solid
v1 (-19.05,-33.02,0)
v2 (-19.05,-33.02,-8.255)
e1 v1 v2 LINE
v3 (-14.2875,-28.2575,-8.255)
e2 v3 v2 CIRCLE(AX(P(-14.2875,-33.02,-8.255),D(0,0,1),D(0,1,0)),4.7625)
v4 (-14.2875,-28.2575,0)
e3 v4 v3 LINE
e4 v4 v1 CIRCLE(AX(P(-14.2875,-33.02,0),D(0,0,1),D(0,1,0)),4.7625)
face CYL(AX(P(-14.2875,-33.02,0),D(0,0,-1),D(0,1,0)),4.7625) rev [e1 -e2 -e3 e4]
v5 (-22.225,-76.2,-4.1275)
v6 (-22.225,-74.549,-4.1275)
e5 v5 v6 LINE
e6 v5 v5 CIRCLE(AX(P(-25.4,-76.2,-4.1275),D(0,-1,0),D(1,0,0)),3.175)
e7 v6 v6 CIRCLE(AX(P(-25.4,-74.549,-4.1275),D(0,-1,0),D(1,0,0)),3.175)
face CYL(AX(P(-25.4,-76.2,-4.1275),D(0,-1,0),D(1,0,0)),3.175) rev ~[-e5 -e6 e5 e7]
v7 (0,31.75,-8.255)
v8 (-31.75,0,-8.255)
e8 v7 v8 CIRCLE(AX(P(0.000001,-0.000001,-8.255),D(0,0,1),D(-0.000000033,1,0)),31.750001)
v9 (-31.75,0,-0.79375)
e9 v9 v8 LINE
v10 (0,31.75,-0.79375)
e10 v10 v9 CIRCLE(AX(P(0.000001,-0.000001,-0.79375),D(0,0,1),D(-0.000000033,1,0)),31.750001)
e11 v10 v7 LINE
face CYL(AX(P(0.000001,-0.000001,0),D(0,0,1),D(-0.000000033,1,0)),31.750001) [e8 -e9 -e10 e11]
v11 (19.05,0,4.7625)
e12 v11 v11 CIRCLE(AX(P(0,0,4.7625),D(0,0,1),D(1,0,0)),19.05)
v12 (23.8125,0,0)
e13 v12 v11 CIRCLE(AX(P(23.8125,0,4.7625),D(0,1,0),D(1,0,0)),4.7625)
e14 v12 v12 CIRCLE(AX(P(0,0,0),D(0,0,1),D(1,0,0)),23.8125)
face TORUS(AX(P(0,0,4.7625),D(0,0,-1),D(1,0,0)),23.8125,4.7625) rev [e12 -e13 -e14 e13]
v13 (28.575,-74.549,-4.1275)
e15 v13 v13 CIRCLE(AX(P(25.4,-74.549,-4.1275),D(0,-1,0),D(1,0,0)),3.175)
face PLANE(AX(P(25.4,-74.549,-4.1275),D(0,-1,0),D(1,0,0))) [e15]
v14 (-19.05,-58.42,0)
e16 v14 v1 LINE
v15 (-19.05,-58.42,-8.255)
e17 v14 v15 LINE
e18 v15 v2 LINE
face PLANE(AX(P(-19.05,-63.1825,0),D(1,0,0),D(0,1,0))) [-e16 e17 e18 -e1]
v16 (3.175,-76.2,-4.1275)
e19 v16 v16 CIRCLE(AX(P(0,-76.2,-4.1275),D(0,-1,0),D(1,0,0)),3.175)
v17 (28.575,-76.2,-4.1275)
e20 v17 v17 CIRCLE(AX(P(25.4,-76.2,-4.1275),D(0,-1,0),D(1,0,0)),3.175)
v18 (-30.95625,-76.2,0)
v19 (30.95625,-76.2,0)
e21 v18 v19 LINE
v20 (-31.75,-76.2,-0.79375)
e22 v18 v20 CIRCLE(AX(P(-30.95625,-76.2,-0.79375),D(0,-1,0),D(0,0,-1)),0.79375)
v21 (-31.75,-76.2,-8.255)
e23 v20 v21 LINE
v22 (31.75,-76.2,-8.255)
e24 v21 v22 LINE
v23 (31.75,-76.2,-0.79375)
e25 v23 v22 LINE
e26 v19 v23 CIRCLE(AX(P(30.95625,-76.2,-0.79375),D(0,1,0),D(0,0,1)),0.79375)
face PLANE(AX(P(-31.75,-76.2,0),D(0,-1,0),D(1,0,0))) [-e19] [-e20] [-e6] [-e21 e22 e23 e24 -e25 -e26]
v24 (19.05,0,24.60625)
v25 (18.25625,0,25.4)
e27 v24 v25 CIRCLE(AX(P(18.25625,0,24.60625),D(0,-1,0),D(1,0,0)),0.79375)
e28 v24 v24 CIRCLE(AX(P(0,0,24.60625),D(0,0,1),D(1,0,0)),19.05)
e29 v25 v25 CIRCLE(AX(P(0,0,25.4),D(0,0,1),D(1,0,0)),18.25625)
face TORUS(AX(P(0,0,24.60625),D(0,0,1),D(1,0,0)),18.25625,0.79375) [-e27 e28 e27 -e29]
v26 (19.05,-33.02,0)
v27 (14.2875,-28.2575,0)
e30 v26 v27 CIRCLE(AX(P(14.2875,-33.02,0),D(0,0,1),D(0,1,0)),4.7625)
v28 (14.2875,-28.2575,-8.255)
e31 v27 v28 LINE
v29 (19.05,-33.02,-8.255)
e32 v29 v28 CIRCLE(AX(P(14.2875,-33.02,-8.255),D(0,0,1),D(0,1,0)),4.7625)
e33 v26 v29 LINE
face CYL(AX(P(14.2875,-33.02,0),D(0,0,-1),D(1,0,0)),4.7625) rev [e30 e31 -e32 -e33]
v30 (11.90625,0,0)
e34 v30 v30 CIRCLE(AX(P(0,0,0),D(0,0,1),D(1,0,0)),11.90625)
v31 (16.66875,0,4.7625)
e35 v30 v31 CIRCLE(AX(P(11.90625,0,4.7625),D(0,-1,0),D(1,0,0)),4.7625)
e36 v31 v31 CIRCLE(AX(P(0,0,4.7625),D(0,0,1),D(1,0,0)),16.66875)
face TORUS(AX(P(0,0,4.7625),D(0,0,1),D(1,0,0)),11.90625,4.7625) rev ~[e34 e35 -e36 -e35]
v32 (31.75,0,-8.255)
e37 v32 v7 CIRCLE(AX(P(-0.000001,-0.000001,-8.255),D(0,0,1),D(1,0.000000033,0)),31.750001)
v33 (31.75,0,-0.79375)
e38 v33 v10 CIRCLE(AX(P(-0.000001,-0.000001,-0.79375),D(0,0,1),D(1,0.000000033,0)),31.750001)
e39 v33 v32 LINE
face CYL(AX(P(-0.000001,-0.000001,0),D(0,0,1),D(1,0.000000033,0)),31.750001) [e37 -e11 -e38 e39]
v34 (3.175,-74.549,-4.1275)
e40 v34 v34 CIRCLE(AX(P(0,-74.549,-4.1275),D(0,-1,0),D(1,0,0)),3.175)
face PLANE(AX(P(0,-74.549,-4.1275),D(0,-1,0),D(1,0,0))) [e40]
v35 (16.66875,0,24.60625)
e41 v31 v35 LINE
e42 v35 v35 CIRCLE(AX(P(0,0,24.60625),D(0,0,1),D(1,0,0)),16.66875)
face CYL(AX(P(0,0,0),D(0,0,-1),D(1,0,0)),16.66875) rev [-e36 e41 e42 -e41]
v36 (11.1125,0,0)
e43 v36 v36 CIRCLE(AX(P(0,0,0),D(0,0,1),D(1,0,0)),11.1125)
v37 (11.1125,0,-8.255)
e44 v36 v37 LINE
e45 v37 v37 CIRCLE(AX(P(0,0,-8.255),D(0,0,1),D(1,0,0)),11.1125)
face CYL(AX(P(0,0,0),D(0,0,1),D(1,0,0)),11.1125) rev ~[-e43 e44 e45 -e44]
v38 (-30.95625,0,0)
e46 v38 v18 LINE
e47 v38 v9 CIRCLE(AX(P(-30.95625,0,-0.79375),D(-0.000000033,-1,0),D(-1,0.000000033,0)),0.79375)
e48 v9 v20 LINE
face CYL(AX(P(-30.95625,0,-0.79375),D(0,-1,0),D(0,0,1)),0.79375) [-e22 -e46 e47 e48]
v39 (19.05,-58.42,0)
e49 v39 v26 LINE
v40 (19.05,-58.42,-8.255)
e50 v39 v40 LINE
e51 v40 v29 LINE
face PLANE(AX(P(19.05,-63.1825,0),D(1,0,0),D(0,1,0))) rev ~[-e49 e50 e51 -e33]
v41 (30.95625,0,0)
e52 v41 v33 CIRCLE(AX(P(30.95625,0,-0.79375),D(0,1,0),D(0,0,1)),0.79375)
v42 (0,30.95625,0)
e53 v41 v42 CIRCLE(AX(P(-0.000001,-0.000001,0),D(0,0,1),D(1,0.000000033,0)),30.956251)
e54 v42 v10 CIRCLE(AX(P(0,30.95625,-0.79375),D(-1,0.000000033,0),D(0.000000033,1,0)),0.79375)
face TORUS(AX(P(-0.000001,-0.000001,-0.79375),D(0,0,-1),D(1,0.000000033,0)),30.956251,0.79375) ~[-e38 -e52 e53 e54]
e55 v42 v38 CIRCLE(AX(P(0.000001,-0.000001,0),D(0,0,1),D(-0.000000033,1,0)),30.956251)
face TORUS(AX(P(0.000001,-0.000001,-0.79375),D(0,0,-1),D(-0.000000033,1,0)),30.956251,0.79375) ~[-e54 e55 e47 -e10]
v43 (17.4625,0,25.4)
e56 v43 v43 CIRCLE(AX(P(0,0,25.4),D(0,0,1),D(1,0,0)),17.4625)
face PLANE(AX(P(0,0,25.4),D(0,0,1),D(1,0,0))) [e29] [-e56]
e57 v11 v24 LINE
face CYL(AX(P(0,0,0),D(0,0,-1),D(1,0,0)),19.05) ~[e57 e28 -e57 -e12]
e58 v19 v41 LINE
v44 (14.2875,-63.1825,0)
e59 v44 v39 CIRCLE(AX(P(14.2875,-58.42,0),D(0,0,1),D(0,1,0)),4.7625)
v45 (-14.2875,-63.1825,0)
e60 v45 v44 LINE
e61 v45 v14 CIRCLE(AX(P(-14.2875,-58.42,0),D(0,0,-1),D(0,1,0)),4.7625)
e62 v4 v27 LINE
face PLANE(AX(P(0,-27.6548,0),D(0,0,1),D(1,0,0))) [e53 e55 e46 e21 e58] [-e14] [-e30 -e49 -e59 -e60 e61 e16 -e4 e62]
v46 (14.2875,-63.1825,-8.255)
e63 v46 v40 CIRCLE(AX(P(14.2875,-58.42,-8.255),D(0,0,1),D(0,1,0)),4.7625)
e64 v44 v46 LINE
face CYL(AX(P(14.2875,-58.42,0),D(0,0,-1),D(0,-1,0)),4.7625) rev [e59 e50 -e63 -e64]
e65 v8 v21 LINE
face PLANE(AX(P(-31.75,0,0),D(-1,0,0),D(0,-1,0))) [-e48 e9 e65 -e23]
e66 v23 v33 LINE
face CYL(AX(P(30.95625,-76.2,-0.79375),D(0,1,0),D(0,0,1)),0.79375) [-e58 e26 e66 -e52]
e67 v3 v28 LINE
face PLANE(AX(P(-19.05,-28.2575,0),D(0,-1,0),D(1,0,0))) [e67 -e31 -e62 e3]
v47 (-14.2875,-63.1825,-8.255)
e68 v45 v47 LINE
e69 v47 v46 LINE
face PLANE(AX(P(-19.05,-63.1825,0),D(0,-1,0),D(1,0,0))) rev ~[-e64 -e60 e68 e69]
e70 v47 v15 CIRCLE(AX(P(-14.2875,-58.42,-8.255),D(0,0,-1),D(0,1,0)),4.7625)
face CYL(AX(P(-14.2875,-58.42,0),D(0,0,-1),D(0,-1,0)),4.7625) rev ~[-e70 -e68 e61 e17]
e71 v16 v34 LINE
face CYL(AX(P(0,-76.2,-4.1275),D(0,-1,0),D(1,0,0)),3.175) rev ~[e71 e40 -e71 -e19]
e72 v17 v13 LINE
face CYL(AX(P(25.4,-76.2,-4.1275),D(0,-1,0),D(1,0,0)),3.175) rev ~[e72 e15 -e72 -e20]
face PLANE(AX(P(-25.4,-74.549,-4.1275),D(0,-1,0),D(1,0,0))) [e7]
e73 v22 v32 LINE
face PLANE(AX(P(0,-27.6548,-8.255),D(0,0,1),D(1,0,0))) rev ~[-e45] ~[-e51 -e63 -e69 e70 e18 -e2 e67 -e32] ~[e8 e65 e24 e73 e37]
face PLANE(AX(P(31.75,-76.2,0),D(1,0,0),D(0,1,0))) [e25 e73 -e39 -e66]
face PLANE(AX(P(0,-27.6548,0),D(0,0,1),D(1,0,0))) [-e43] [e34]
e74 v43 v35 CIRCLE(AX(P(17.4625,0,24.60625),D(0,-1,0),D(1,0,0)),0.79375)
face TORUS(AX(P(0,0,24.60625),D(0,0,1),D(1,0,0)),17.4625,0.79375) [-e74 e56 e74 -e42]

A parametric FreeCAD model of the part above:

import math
import FreeCAD as App
import Part
import Sketcher
Q = App.Units.Quantity


def edges_at(feature, points):
    """Names of the edges that pass closest to the given points."""
    edges = feature.Shape.Edges
    near = lambda p: min(range(len(edges)), key=lambda i: edges[i].distToShape(Part.Vertex(*p))[0])
    return sorted({f"Edge{near(p) + 1}" for p in points})


def add_polygon(sketch, points):
    """Adds a closed chain of lines whose ends are joined by coincident constraints."""
    first, n = sketch.GeometryCount, len(points)
    for a, b in zip(points, points[1:] + points[:1]):
        sketch.addGeometry(Part.LineSegment(App.Vector(*a, 0), App.Vector(*b, 0)), False)
    for i in range(n):
        sketch.addConstraint(Sketcher.Constraint("Coincident", first + i, 2, first + (i + 1) % n, 1))

doc = App.newDocument("Part")
params = doc.addObject("Spreadsheet::Sheet", "Params")
for row, (alias, value) in enumerate([
    ("sketch1_height", "3 in"),
    ("sketch1_radius", "1.25 in"),
    ("pad1_length", "0.325 in"),
    ("sketch2_diameter", "1.5 in"),
    ("sketch2_diameter2", "1.3125 in"),
    ("pad2_length", "1 in"),
    ("sketch3_diameter", "0.25 in"),
    ("pocket1_length", "0.065 in"),
    ("sketch4_diameter", "0.875 in"),
    ("sketch4_width", "1.5 in"),
    ("sketch4_height", "1.375 in"),
    ("fillet_radius", "0.1875 in"),
    ("fillet2_radius", "0.03125 in"),
], start=1):
    params.set(f"A{row}", alias)
    params.set(f"B{row}", "=" + value)
    params.setAlias(f"B{row}", alias)

body = doc.addObject("PartDesign::Body", "Body")

# Sketch on XY plane
sketch1 = body.newObject("Sketcher::SketchObject", "Sketch")
sketch1.AttachmentSupport = (doc.getObject("XY_Plane"), [""])
sketch1.MapMode = "FlatFace"
sketch1.addGeometry([
    Part.ArcOfCircle(Part.Circle(App.Vector(0, 0, 0), App.Vector(0, 0, 1), 32), math.radians(0), math.radians(90)),  # 0
    Part.ArcOfCircle(Part.Circle(App.Vector(0, 0, 0), App.Vector(0, 0, 1), 32), math.radians(90), math.radians(180)),  # 1
    Part.LineSegment(App.Vector(-32, 0, 0), App.Vector(-32, -76, 0)),  # 2
    Part.LineSegment(App.Vector(-32, -76, 0), App.Vector(32, -76, 0)),  # 3
    Part.LineSegment(App.Vector(32, -76, 0), App.Vector(32, 0, 0)),  # 4
], False)
sketch1.addConstraint([
    Sketcher.Constraint("Tangent", 0, 2, 1, 1),
    Sketcher.Constraint("Tangent", 1, 2, 2, 1),
    Sketcher.Constraint("Coincident", 2, 2, 3, 1),
    Sketcher.Constraint("Coincident", 3, 2, 4, 1),
    Sketcher.Constraint("Tangent", 4, 2, 0, 1),
    Sketcher.Constraint("Vertical", 2),
    Sketcher.Constraint("Horizontal", 3),
    Sketcher.Constraint("Vertical", 4),
    Sketcher.Constraint("Coincident", 0, 3, -1, 1),
    Sketcher.Constraint("Equal", 0, 1),
    Sketcher.Constraint("PointOnObject", 0, 2, -2),
    Sketcher.Constraint("DistanceY", 2, 2, 2, 1, Q("3 in")),
    Sketcher.Constraint("Radius", 0, Q("1.25 in")),
])
sketch1.setExpression("Constraints[11]", "Params.sketch1_height")
sketch1.setExpression("Constraints[12]", "Params.sketch1_radius")
pad1 = body.newObject("PartDesign::Pad", "Pad")
pad1.Profile = sketch1
pad1.setExpression("Length", "Params.pad1_length")
pad1.Reversed = True

# Sketch on XY plane
sketch2 = body.newObject("Sketcher::SketchObject", "Sketch001")
sketch2.AttachmentSupport = (doc.getObject("XY_Plane"), [""])
sketch2.MapMode = "FlatFace"
sketch2.addGeometry([
    Part.Circle(App.Vector(0, 0, 0), App.Vector(0, 0, 1), 19),
    Part.Circle(App.Vector(0, 0, 0), App.Vector(0, 0, 1), 17),
], False)
sketch2.addConstraint([
    Sketcher.Constraint("Coincident", 0, 3, -1, 1),
    Sketcher.Constraint("Coincident", 1, 3, -1, 1),
    Sketcher.Constraint("Diameter", 0, Q("1.5 in")),
    Sketcher.Constraint("Diameter", 1, Q("1.3125 in")),
])
sketch2.setExpression("Constraints[2]", "Params.sketch2_diameter")
sketch2.setExpression("Constraints[3]", "Params.sketch2_diameter2")
pad2 = body.newObject("PartDesign::Pad", "Pad001")
pad2.Profile = sketch2
pad2.setExpression("Length", "Params.pad2_length")

# Sketch on XZ plane
sketch3 = body.newObject("Sketcher::SketchObject", "Sketch002")
sketch3.AttachmentSupport = (doc.getObject("XZ_Plane"), [""])
sketch3.MapMode = "FlatFace"
sketch3.AttachmentOffset = App.Placement(App.Vector(0, 0, 3 * 25.4), App.Rotation())
sketch3.addGeometry([
    Part.Circle(App.Vector(-25.4, -4.1, 0), App.Vector(0, 0, 1), 3.2),
    Part.Circle(App.Vector(0, -4.1, 0), App.Vector(0, 0, 1), 3.2),
    Part.Circle(App.Vector(25.4, -4.1, 0), App.Vector(0, 0, 1), 3.2),
], False)
sketch3.addConstraint([
    Sketcher.Constraint("Equal", 0, 1),
    Sketcher.Constraint("Equal", 1, 2),
    Sketcher.Constraint("Symmetric", 0, 3, 2, 3, -2),
    Sketcher.Constraint("PointOnObject", 1, 3, -2),
    Sketcher.Constraint("Horizontal", 0, 3, 1, 3),
    Sketcher.Constraint("Diameter", 0, Q("0.25 in")),
    Sketcher.Constraint("DistanceX", 0, 3, -1, 1, Q("1 in")),
    Sketcher.Constraint("DistanceY", 0, 3, -1, 1, Q("0.1625 in")),
])
sketch3.setExpression("Constraints[5]", "Params.sketch3_diameter")
pocket1 = body.newObject("PartDesign::Pocket", "Pocket")
pocket1.Profile = sketch3
pocket1.setExpression("Length", "Params.pocket1_length")

# Sketch on XY plane
sketch4 = body.newObject("Sketcher::SketchObject", "Sketch003")
sketch4.AttachmentSupport = (doc.getObject("XY_Plane"), [""])
sketch4.MapMode = "FlatFace"
add_polygon(sketch4, [(-19, -28), (-19, -63), (19, -63), (19, -28)])  # lines 0-3
sketch4.addGeometry(Part.Circle(App.Vector(0, 0, 0), App.Vector(0, 0, 1), 11), False)  # 4
sketch4.addConstraint([
    Sketcher.Constraint("Vertical", 0),
    Sketcher.Constraint("Horizontal", 1),
    Sketcher.Constraint("Vertical", 2),
    Sketcher.Constraint("Horizontal", 3),
    Sketcher.Constraint("Coincident", 4, 3, -1, 1),
    Sketcher.Constraint("Diameter", 4, Q("0.875 in")),
    Sketcher.Constraint("DistanceX", 1, 1, 1, 2, Q("1.5 in")),
    Sketcher.Constraint("DistanceY", 0, 2, 0, 1, Q("1.375 in")),
    Sketcher.Constraint("DistanceX", 0, 2, -1, 1, Q("0.75 in")),
    Sketcher.Constraint("DistanceY", 0, 2, -1, 1, Q("2.4875 in")),
])
sketch4.setExpression("Constraints[9]", "Params.sketch4_diameter")
sketch4.setExpression("Constraints[10]", "Params.sketch4_width")
sketch4.setExpression("Constraints[11]", "Params.sketch4_height")
pocket2 = body.newObject("PartDesign::Pocket", "Pocket001")
pocket2.Profile = sketch4
pocket2.Type = "ThroughAll"
doc.recompute()

fillet = body.newObject("PartDesign::Fillet", "Fillet")
fillet.Base = (pocket2, edges_at(pocket2, [
    (-19.05, 0, 0),
    (-16.669, 0, 0),
    (-19.05, -28.258, -4.128),
    (19.05, -28.258, -4.128),
    (-19.05, -63.182, -4.128),
    (19.05, -63.182, -4.128),
]))
fillet.setExpression("Radius", "Params.fillet_radius")
doc.recompute()

fillet2 = body.newObject("PartDesign::Fillet", "Fillet001")
fillet2.Base = (fillet, edges_at(fillet, [(-19.05, 0, 25.4), (-16.669, 0, 25.4), (-31.75, -38.1, 0)]))
fillet2.setExpression("Radius", "Params.fillet2_radius")

doc.recompute()
